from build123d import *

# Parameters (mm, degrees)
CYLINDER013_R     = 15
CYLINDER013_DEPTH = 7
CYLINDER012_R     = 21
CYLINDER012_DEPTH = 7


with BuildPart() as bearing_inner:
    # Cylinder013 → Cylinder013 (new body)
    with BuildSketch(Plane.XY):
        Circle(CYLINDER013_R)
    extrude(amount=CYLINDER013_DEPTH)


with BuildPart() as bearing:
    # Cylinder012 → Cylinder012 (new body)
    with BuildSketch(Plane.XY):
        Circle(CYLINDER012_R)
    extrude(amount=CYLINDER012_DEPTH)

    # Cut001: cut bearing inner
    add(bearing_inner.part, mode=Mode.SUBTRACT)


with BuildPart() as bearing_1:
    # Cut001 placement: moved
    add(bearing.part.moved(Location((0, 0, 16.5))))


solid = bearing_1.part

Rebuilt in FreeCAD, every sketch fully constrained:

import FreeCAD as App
import Part
import Sketcher
from FreeCAD import Vector
Q = App.Units.Quantity

doc = App.newDocument("Part")
body = doc.addObject("PartDesign::Body", "Body")

sketch1 = body.newObject("Sketcher::SketchObject", "Sketch")
sketch1.AttachmentSupport = (doc.getObject("XY_Plane"), [""])
sketch1.MapMode = "FlatFace"
sketch1.addGeometry(Part.Circle(Vector(0, 0, 0), Vector(0, 0, 1), 15), False)
sketch1.addConstraint([
    Sketcher.Constraint("Coincident", 0, 3, -1, 1),
    Sketcher.Constraint("Diameter", 0, Q("30 mm")),
])
pad1 = body.newObject("PartDesign::Pad", "Pad")
pad1.Profile = sketch1
pad1.Length = 7
body2 = doc.addObject("PartDesign::Body", "Body001")

sketch2 = body2.newObject("Sketcher::SketchObject", "Sketch001")
sketch2.AttachmentSupport = (doc.getObject("XY_Plane001"), [""])
sketch2.MapMode = "FlatFace"
sketch2.addGeometry(Part.Circle(Vector(0, 0, 0), Vector(0, 0, 1), 21), False)
sketch2.addConstraint([
    Sketcher.Constraint("Coincident", 0, 3, -1, 1),
    Sketcher.Constraint("Diameter", 0, Q("42 mm")),
])
pad2 = body2.newObject("PartDesign::Pad", "Pad001")
pad2.Profile = sketch2
pad2.Length = 7
doc.recompute()

boolean = body2.newObject("PartDesign::Boolean", "Boolean")
boolean.Type = "Cut"
boolean.addObjects([body])
body3 = doc.addObject("PartDesign::Body", "Body002")
doc.recompute()

body2.Placement = App.Placement(Vector(0, 0, 16.5), App.Rotation(Vector(0, 0, 1), 0))
boolean2 = body3.newObject("PartDesign::Boolean", "Boolean001")
boolean2.Type = "Fuse"
boolean2.addObjects([body2])

doc.recompute()
